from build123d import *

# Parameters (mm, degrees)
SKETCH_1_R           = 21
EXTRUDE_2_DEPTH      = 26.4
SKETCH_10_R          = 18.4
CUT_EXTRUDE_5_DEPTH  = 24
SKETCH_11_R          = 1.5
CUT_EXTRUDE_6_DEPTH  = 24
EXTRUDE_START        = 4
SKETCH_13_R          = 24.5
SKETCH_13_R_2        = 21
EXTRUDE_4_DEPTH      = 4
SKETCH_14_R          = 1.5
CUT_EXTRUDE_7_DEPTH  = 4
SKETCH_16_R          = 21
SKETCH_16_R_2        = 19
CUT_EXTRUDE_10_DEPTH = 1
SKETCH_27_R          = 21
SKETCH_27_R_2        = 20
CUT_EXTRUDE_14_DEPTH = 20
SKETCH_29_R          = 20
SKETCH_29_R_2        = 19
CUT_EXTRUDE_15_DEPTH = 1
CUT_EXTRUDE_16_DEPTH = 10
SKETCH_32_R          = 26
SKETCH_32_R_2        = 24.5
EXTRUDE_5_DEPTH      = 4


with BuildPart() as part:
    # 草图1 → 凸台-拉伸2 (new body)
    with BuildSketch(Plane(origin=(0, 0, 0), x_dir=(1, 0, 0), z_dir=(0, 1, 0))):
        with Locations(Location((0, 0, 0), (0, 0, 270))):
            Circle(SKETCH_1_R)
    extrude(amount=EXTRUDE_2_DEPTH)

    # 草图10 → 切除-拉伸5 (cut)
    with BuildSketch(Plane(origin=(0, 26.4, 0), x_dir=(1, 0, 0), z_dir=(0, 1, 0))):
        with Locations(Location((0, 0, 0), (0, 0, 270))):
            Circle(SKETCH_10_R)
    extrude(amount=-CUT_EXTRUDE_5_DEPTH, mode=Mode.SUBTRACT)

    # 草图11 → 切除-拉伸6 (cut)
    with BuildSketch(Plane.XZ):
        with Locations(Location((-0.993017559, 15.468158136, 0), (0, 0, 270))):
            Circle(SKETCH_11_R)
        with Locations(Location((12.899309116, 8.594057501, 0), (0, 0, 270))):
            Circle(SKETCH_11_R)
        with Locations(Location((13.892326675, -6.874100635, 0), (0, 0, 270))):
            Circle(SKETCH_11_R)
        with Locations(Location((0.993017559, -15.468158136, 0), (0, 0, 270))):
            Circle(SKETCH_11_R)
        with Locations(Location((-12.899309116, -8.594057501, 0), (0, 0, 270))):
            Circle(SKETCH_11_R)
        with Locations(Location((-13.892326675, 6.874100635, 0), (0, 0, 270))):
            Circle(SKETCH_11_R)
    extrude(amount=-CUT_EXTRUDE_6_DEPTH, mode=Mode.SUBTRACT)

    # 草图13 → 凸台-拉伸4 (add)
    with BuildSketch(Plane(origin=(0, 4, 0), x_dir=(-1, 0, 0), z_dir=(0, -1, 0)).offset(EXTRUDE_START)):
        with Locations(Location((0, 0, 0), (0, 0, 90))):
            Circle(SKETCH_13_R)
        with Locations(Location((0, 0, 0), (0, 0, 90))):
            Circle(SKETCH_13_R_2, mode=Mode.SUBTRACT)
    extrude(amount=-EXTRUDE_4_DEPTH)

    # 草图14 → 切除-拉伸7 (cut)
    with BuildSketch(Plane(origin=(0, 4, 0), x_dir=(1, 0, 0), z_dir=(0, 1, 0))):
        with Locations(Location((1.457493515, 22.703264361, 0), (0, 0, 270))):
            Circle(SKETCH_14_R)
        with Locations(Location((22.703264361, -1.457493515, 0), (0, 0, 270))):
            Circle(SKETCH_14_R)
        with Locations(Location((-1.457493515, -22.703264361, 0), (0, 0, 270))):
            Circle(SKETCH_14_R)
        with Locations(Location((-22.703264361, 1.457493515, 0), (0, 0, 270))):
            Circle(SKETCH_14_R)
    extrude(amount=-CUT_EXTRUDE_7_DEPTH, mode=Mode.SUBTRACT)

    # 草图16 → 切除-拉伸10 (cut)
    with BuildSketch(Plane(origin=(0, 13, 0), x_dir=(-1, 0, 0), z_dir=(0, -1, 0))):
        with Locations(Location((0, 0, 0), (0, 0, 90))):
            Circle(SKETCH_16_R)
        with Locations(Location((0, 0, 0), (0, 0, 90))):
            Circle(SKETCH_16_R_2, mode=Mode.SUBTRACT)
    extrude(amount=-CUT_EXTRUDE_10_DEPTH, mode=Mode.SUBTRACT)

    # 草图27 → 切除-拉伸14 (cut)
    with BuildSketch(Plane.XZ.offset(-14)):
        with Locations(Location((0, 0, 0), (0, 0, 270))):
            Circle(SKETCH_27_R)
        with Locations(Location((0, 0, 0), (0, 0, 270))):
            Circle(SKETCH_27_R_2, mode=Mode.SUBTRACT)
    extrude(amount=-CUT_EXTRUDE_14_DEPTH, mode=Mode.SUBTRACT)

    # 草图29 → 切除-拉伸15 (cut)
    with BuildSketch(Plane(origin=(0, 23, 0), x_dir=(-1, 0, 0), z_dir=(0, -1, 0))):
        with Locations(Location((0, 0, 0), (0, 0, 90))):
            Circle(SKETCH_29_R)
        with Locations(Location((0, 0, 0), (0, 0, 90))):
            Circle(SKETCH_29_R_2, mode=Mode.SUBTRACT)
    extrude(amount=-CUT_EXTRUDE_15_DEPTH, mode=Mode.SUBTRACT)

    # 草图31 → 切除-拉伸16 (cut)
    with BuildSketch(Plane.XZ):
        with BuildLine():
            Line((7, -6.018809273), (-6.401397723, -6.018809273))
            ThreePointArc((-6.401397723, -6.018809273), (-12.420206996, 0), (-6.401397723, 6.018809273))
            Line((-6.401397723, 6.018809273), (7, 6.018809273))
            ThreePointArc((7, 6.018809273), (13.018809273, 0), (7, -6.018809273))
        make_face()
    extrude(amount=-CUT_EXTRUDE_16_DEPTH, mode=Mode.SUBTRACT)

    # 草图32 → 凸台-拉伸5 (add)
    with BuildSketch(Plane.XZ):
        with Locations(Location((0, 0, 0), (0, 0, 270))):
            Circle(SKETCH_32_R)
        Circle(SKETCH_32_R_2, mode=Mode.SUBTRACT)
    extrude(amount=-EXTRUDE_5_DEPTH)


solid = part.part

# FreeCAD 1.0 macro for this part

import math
import FreeCAD as App
import Part
import Sketcher
Q = App.Units.Quantity

doc = App.newDocument("Part")
body = doc.addObject("PartDesign::Body", "Body")

# Sketch on XZ plane
sketch1 = doc.addObject("Sketcher::SketchObject", "Sketch")
body.addObject(sketch1)
sketch1.AttachmentSupport = (doc.XZ_Plane, [""])
sketch1.MapMode = "FlatFace"
sketch1.addGeometry(Part.Circle(App.Vector(0, 0, 0), App.Vector(0, 0, 1), 21), False)
sketch1.addConstraint([
    Sketcher.Constraint("Coincident", 0, 3, -1, 1),
    Sketcher.Constraint("Diameter", 0, Q("42 mm")),
])
pad1 = doc.addObject("PartDesign::Pad", "Pad")
body.addObject(pad1)
pad1.Profile = sketch1
pad1.Length = 26.4
pad1.Reversed = True

# Sketch on XZ plane
sketch2 = doc.addObject("Sketcher::SketchObject", "Sketch001")
body.addObject(sketch2)
sketch2.AttachmentSupport = (doc.XZ_Plane, [""])
sketch2.MapMode = "FlatFace"
sketch2.AttachmentOffset = App.Placement(App.Vector(0, 0, -26.4), App.Rotation())
sketch2.addGeometry(Part.Circle(App.Vector(0, 0, 0), App.Vector(0, 0, 1), 18.4), False)
sketch2.addConstraint([
    Sketcher.Constraint("Coincident", 0, 3, -1, 1),
    Sketcher.Constraint("Diameter", 0, Q("36.8 mm")),
])
pocket1 = doc.addObject("PartDesign::Pocket", "Pocket")
body.addObject(pocket1)
pocket1.Profile = sketch2
pocket1.Length = 24
pocket1.Reversed = True

# Sketch on XZ plane
sketch3 = doc.addObject("Sketcher::SketchObject", "Sketch002")
body.addObject(sketch3)
sketch3.AttachmentSupport = (doc.XZ_Plane, [""])
sketch3.MapMode = "FlatFace"
sketch3.addGeometry([
    Part.Circle(App.Vector(-0.993018, 15.468158, 0), App.Vector(0, 0, 1), 1.5),  # 0
    Part.Circle(App.Vector(12.899309, 8.594058, 0), App.Vector(0, 0, 1), 1.5),  # 1
    Part.Circle(App.Vector(13.892327, -6.874101, 0), App.Vector(0, 0, 1), 1.5),  # 2
    Part.Circle(App.Vector(0.993018, -15.468158, 0), App.Vector(0, 0, 1), 1.5),  # 3
    Part.Circle(App.Vector(-12.899309, -8.594058, 0), App.Vector(0, 0, 1), 1.5),  # 4
    Part.Circle(App.Vector(-13.892327, 6.874101, 0), App.Vector(0, 0, 1), 1.5),  # 5
], False)
sketch3.addConstraint([
    Sketcher.Constraint("Equal", 0, 1),
    Sketcher.Constraint("Equal", 1, 2),
    Sketcher.Constraint("Equal", 2, 3),
    Sketcher.Constraint("Equal", 3, 4),
    Sketcher.Constraint("Equal", 4, 5),
    Sketcher.Constraint("Symmetric", 0, 3, 3, 3, -1, 1),
    Sketcher.Constraint("Symmetric", 1, 3, 4, 3, -1, 1),
    Sketcher.Constraint("Symmetric", 2, 3, 5, 3, -1, 1),
    Sketcher.Constraint("Diameter", 0, Q("3 mm")),
    Sketcher.Constraint("DistanceY", 2, 3, -1, 1, Q("6.874101 mm")),
    Sketcher.Constraint("DistanceY", 1, 3, 0, 3, Q("6.874101 mm")),
    Sketcher.Constraint("DistanceY", -1, 1, 0, 3, Q("15.468158 mm")),
    Sketcher.Constraint("DistanceX", -1, 1, 1, 3, Q("12.899309 mm")),
    Sketcher.Constraint("DistanceX", 3, 3, 2, 3, Q("12.899309 mm")),
    Sketcher.Constraint("DistanceX", 3, 3, 1, 3, Q("11.906292 mm")),
])
pocket2 = doc.addObject("PartDesign::Pocket", "Pocket001")
body.addObject(pocket2)
pocket2.Profile = sketch3
pocket2.Length = 24

# Sketch on XZ plane
sketch4 = doc.addObject("Sketcher::SketchObject", "Sketch003")
body.addObject(sketch4)
sketch4.AttachmentSupport = (doc.XZ_Plane, [""])
sketch4.MapMode = "FlatFace"
sketch4.addGeometry([
    Part.Circle(App.Vector(0, 0, 0), App.Vector(0, 0, 1), 24.5),
    Part.Circle(App.Vector(0, 0, 0), App.Vector(0, 0, 1), 21),
], False)
sketch4.addConstraint([
    Sketcher.Constraint("Coincident", 0, 3, -1, 1),
    Sketcher.Constraint("Coincident", 1, 3, -1, 1),
    Sketcher.Constraint("Diameter", 0, Q("49 mm")),
    Sketcher.Constraint("Diameter", 1, Q("42 mm")),
])
pad2 = doc.addObject("PartDesign::Pad", "Pad001")
body.addObject(pad2)
pad2.Profile = sketch4
pad2.Length = 4
pad2.Reversed = True

# Sketch on XZ plane
sketch5 = doc.addObject("Sketcher::SketchObject", "Sketch004")
body.addObject(sketch5)
sketch5.AttachmentSupport = (doc.XZ_Plane, [""])
sketch5.MapMode = "FlatFace"
sketch5.AttachmentOffset = App.Placement(App.Vector(0, 0, -4), App.Rotation())
sketch5.addGeometry([
    Part.Circle(App.Vector(1.457494, -22.703264, 0), App.Vector(0, 0, 1), 1.5),
    Part.Circle(App.Vector(22.703264, 1.457494, 0), App.Vector(0, 0, 1), 1.5),
    Part.Circle(App.Vector(-1.457494, 22.703264, 0), App.Vector(0, 0, 1), 1.5),
    Part.Circle(App.Vector(-22.703264, -1.457494, 0), App.Vector(0, 0, 1), 1.5),
], False)
sketch5.addConstraint([
    Sketcher.Constraint("Equal", 0, 1),
    Sketcher.Constraint("Equal", 1, 2),
    Sketcher.Constraint("Equal", 2, 3),
    Sketcher.Constraint("Symmetric", 0, 3, 2, 3, -1, 1),
    Sketcher.Constraint("Symmetric", 1, 3, 3, 3, -1, 1),
    Sketcher.Constraint("Diameter", 0, Q("3 mm")),
    Sketcher.Constraint("DistanceX", 0, 3, 1, 3, Q("21.245771 mm")),
    Sketcher.Constraint("DistanceY", 1, 3, 2, 3, Q("21.245771 mm")),
    Sketcher.Constraint("DistanceY", 0, 3, 2, 3, Q("45.406529 mm")),
    Sketcher.Constraint("DistanceX", 3, 3, 1, 3, Q("45.406529 mm")),
])
pocket3 = doc.addObject("PartDesign::Pocket", "Pocket002")
body.addObject(pocket3)
pocket3.Profile = sketch5
pocket3.Length = 4
pocket3.Reversed = True

# Sketch on XZ plane
sketch6 = doc.addObject("Sketcher::SketchObject", "Sketch005")
body.addObject(sketch6)
sketch6.AttachmentSupport = (doc.XZ_Plane, [""])
sketch6.MapMode = "FlatFace"
sketch6.AttachmentOffset = App.Placement(App.Vector(0, 0, -13), App.Rotation())
sketch6.addGeometry([
    Part.Circle(App.Vector(0, 0, 0), App.Vector(0, 0, 1), 21),
    Part.Circle(App.Vector(0, 0, 0), App.Vector(0, 0, 1), 19),
], False)
sketch6.addConstraint([
    Sketcher.Constraint("Coincident", 0, 3, -1, 1),
    Sketcher.Constraint("Coincident", 1, 3, -1, 1),
    Sketcher.Constraint("Diameter", 0, Q("42 mm")),
    Sketcher.Constraint("Diameter", 1, Q("38 mm")),
])
pocket4 = doc.addObject("PartDesign::Pocket", "Pocket003")
body.addObject(pocket4)
pocket4.Profile = sketch6
pocket4.Length = 1

# Sketch on XZ plane
sketch7 = doc.addObject("Sketcher::SketchObject", "Sketch006")
body.addObject(sketch7)
sketch7.AttachmentSupport = (doc.XZ_Plane, [""])
sketch7.MapMode = "FlatFace"
sketch7.AttachmentOffset = App.Placement(App.Vector(0, 0, -14), App.Rotation())
sketch7.addGeometry([
    Part.Circle(App.Vector(0, 0, 0), App.Vector(0, 0, 1), 21),
    Part.Circle(App.Vector(0, 0, 0), App.Vector(0, 0, 1), 20),
], False)
sketch7.addConstraint([
    Sketcher.Constraint("Coincident", 0, 3, -1, 1),
    Sketcher.Constraint("Coincident", 1, 3, -1, 1),
    Sketcher.Constraint("Diameter", 0, Q("42 mm")),
    Sketcher.Constraint("Diameter", 1, Q("40 mm")),
])
pocket5 = doc.addObject("PartDesign::Pocket", "Pocket004")
body.addObject(pocket5)
pocket5.Profile = sketch7
pocket5.Length = 20

# Sketch on XZ plane
sketch8 = doc.addObject("Sketcher::SketchObject", "Sketch007")
body.addObject(sketch8)
sketch8.AttachmentSupport = (doc.XZ_Plane, [""])
sketch8.MapMode = "FlatFace"
sketch8.AttachmentOffset = App.Placement(App.Vector(0, 0, -23), App.Rotation())
sketch8.addGeometry([
    Part.Circle(App.Vector(0, 0, 0), App.Vector(0, 0, 1), 20),
    Part.Circle(App.Vector(0, 0, 0), App.Vector(0, 0, 1), 19),
], False)
sketch8.addConstraint([
    Sketcher.Constraint("Coincident", 0, 3, -1, 1),
    Sketcher.Constraint("Coincident", 1, 3, -1, 1),
    Sketcher.Constraint("Diameter", 0, Q("40 mm")),
    Sketcher.Constraint("Diameter", 1, Q("38 mm")),
])
pocket6 = doc.addObject("PartDesign::Pocket", "Pocket005")
body.addObject(pocket6)
pocket6.Profile = sketch8
pocket6.Length = 1

# Sketch on XZ plane
sketch9 = doc.addObject("Sketcher::SketchObject", "Sketch008")
body.addObject(sketch9)
sketch9.AttachmentSupport = (doc.XZ_Plane, [""])
sketch9.MapMode = "FlatFace"
sketch9.addGeometry([
    Part.LineSegment(App.Vector(-6.401398, -6.018809, 0), App.Vector(7, -6.018809, 0)),
    Part.ArcOfCircle(Part.Circle(App.Vector(7, 0, 0), App.Vector(0, 0, 1), 6.018809), math.radians(-90), math.radians(90)),
    Part.LineSegment(App.Vector(7, 6.018809, 0), App.Vector(-6.401398, 6.018809, 0)),
    Part.ArcOfCircle(Part.Circle(App.Vector(-6.401398, 0, 0), App.Vector(0, 0, 1), 6.018809), math.radians(90), math.radians(270)),
], False)
sketch9.addConstraint([
    Sketcher.Constraint("Tangent", 0, 2, 1, 1),
    Sketcher.Constraint("Tangent", 1, 2, 2, 1),
    Sketcher.Constraint("Tangent", 2, 2, 3, 1),
    Sketcher.Constraint("Tangent", 3, 2, 0, 1),
    Sketcher.Constraint("Horizontal", 0),
    Sketcher.Constraint("Horizontal", 2),
    Sketcher.Constraint("PointOnObject", 1, 3, -1),
    Sketcher.Constraint("DistanceX", -1, 1, 1, 3, Q("7 mm")),
    Sketcher.Constraint("Radius", 1, Q("6.018809 mm")),
    Sketcher.Constraint("DistanceX", 0, 1, 0, 2, Q("13.401398 mm")),
])
pocket7 = doc.addObject("PartDesign::Pocket", "Pocket006")
body.addObject(pocket7)
pocket7.Profile = sketch9
pocket7.Length = 10

# Sketch on XZ plane
sketch10 = doc.addObject("Sketcher::SketchObject", "Sketch009")
body.addObject(sketch10)
sketch10.AttachmentSupport = (doc.XZ_Plane, [""])
sketch10.MapMode = "FlatFace"
sketch10.addGeometry([
    Part.Circle(App.Vector(0, 0, 0), App.Vector(0, 0, 1), 26),
    Part.Circle(App.Vector(0, 0, 0), App.Vector(0, 0, 1), 24.5),
], False)
sketch10.addConstraint([
    Sketcher.Constraint("Coincident", 0, 3, -1, 1),
    Sketcher.Constraint("Coincident", 1, 3, -1, 1),
    Sketcher.Constraint("Diameter", 0, Q("52 mm")),
    Sketcher.Constraint("Diameter", 1, Q("49 mm")),
])
pad3 = doc.addObject("PartDesign::Pad", "Pad002")
body.addObject(pad3)
pad3.Profile = sketch10
pad3.Length = 4
pad3.Reversed = True

doc.recompute()
